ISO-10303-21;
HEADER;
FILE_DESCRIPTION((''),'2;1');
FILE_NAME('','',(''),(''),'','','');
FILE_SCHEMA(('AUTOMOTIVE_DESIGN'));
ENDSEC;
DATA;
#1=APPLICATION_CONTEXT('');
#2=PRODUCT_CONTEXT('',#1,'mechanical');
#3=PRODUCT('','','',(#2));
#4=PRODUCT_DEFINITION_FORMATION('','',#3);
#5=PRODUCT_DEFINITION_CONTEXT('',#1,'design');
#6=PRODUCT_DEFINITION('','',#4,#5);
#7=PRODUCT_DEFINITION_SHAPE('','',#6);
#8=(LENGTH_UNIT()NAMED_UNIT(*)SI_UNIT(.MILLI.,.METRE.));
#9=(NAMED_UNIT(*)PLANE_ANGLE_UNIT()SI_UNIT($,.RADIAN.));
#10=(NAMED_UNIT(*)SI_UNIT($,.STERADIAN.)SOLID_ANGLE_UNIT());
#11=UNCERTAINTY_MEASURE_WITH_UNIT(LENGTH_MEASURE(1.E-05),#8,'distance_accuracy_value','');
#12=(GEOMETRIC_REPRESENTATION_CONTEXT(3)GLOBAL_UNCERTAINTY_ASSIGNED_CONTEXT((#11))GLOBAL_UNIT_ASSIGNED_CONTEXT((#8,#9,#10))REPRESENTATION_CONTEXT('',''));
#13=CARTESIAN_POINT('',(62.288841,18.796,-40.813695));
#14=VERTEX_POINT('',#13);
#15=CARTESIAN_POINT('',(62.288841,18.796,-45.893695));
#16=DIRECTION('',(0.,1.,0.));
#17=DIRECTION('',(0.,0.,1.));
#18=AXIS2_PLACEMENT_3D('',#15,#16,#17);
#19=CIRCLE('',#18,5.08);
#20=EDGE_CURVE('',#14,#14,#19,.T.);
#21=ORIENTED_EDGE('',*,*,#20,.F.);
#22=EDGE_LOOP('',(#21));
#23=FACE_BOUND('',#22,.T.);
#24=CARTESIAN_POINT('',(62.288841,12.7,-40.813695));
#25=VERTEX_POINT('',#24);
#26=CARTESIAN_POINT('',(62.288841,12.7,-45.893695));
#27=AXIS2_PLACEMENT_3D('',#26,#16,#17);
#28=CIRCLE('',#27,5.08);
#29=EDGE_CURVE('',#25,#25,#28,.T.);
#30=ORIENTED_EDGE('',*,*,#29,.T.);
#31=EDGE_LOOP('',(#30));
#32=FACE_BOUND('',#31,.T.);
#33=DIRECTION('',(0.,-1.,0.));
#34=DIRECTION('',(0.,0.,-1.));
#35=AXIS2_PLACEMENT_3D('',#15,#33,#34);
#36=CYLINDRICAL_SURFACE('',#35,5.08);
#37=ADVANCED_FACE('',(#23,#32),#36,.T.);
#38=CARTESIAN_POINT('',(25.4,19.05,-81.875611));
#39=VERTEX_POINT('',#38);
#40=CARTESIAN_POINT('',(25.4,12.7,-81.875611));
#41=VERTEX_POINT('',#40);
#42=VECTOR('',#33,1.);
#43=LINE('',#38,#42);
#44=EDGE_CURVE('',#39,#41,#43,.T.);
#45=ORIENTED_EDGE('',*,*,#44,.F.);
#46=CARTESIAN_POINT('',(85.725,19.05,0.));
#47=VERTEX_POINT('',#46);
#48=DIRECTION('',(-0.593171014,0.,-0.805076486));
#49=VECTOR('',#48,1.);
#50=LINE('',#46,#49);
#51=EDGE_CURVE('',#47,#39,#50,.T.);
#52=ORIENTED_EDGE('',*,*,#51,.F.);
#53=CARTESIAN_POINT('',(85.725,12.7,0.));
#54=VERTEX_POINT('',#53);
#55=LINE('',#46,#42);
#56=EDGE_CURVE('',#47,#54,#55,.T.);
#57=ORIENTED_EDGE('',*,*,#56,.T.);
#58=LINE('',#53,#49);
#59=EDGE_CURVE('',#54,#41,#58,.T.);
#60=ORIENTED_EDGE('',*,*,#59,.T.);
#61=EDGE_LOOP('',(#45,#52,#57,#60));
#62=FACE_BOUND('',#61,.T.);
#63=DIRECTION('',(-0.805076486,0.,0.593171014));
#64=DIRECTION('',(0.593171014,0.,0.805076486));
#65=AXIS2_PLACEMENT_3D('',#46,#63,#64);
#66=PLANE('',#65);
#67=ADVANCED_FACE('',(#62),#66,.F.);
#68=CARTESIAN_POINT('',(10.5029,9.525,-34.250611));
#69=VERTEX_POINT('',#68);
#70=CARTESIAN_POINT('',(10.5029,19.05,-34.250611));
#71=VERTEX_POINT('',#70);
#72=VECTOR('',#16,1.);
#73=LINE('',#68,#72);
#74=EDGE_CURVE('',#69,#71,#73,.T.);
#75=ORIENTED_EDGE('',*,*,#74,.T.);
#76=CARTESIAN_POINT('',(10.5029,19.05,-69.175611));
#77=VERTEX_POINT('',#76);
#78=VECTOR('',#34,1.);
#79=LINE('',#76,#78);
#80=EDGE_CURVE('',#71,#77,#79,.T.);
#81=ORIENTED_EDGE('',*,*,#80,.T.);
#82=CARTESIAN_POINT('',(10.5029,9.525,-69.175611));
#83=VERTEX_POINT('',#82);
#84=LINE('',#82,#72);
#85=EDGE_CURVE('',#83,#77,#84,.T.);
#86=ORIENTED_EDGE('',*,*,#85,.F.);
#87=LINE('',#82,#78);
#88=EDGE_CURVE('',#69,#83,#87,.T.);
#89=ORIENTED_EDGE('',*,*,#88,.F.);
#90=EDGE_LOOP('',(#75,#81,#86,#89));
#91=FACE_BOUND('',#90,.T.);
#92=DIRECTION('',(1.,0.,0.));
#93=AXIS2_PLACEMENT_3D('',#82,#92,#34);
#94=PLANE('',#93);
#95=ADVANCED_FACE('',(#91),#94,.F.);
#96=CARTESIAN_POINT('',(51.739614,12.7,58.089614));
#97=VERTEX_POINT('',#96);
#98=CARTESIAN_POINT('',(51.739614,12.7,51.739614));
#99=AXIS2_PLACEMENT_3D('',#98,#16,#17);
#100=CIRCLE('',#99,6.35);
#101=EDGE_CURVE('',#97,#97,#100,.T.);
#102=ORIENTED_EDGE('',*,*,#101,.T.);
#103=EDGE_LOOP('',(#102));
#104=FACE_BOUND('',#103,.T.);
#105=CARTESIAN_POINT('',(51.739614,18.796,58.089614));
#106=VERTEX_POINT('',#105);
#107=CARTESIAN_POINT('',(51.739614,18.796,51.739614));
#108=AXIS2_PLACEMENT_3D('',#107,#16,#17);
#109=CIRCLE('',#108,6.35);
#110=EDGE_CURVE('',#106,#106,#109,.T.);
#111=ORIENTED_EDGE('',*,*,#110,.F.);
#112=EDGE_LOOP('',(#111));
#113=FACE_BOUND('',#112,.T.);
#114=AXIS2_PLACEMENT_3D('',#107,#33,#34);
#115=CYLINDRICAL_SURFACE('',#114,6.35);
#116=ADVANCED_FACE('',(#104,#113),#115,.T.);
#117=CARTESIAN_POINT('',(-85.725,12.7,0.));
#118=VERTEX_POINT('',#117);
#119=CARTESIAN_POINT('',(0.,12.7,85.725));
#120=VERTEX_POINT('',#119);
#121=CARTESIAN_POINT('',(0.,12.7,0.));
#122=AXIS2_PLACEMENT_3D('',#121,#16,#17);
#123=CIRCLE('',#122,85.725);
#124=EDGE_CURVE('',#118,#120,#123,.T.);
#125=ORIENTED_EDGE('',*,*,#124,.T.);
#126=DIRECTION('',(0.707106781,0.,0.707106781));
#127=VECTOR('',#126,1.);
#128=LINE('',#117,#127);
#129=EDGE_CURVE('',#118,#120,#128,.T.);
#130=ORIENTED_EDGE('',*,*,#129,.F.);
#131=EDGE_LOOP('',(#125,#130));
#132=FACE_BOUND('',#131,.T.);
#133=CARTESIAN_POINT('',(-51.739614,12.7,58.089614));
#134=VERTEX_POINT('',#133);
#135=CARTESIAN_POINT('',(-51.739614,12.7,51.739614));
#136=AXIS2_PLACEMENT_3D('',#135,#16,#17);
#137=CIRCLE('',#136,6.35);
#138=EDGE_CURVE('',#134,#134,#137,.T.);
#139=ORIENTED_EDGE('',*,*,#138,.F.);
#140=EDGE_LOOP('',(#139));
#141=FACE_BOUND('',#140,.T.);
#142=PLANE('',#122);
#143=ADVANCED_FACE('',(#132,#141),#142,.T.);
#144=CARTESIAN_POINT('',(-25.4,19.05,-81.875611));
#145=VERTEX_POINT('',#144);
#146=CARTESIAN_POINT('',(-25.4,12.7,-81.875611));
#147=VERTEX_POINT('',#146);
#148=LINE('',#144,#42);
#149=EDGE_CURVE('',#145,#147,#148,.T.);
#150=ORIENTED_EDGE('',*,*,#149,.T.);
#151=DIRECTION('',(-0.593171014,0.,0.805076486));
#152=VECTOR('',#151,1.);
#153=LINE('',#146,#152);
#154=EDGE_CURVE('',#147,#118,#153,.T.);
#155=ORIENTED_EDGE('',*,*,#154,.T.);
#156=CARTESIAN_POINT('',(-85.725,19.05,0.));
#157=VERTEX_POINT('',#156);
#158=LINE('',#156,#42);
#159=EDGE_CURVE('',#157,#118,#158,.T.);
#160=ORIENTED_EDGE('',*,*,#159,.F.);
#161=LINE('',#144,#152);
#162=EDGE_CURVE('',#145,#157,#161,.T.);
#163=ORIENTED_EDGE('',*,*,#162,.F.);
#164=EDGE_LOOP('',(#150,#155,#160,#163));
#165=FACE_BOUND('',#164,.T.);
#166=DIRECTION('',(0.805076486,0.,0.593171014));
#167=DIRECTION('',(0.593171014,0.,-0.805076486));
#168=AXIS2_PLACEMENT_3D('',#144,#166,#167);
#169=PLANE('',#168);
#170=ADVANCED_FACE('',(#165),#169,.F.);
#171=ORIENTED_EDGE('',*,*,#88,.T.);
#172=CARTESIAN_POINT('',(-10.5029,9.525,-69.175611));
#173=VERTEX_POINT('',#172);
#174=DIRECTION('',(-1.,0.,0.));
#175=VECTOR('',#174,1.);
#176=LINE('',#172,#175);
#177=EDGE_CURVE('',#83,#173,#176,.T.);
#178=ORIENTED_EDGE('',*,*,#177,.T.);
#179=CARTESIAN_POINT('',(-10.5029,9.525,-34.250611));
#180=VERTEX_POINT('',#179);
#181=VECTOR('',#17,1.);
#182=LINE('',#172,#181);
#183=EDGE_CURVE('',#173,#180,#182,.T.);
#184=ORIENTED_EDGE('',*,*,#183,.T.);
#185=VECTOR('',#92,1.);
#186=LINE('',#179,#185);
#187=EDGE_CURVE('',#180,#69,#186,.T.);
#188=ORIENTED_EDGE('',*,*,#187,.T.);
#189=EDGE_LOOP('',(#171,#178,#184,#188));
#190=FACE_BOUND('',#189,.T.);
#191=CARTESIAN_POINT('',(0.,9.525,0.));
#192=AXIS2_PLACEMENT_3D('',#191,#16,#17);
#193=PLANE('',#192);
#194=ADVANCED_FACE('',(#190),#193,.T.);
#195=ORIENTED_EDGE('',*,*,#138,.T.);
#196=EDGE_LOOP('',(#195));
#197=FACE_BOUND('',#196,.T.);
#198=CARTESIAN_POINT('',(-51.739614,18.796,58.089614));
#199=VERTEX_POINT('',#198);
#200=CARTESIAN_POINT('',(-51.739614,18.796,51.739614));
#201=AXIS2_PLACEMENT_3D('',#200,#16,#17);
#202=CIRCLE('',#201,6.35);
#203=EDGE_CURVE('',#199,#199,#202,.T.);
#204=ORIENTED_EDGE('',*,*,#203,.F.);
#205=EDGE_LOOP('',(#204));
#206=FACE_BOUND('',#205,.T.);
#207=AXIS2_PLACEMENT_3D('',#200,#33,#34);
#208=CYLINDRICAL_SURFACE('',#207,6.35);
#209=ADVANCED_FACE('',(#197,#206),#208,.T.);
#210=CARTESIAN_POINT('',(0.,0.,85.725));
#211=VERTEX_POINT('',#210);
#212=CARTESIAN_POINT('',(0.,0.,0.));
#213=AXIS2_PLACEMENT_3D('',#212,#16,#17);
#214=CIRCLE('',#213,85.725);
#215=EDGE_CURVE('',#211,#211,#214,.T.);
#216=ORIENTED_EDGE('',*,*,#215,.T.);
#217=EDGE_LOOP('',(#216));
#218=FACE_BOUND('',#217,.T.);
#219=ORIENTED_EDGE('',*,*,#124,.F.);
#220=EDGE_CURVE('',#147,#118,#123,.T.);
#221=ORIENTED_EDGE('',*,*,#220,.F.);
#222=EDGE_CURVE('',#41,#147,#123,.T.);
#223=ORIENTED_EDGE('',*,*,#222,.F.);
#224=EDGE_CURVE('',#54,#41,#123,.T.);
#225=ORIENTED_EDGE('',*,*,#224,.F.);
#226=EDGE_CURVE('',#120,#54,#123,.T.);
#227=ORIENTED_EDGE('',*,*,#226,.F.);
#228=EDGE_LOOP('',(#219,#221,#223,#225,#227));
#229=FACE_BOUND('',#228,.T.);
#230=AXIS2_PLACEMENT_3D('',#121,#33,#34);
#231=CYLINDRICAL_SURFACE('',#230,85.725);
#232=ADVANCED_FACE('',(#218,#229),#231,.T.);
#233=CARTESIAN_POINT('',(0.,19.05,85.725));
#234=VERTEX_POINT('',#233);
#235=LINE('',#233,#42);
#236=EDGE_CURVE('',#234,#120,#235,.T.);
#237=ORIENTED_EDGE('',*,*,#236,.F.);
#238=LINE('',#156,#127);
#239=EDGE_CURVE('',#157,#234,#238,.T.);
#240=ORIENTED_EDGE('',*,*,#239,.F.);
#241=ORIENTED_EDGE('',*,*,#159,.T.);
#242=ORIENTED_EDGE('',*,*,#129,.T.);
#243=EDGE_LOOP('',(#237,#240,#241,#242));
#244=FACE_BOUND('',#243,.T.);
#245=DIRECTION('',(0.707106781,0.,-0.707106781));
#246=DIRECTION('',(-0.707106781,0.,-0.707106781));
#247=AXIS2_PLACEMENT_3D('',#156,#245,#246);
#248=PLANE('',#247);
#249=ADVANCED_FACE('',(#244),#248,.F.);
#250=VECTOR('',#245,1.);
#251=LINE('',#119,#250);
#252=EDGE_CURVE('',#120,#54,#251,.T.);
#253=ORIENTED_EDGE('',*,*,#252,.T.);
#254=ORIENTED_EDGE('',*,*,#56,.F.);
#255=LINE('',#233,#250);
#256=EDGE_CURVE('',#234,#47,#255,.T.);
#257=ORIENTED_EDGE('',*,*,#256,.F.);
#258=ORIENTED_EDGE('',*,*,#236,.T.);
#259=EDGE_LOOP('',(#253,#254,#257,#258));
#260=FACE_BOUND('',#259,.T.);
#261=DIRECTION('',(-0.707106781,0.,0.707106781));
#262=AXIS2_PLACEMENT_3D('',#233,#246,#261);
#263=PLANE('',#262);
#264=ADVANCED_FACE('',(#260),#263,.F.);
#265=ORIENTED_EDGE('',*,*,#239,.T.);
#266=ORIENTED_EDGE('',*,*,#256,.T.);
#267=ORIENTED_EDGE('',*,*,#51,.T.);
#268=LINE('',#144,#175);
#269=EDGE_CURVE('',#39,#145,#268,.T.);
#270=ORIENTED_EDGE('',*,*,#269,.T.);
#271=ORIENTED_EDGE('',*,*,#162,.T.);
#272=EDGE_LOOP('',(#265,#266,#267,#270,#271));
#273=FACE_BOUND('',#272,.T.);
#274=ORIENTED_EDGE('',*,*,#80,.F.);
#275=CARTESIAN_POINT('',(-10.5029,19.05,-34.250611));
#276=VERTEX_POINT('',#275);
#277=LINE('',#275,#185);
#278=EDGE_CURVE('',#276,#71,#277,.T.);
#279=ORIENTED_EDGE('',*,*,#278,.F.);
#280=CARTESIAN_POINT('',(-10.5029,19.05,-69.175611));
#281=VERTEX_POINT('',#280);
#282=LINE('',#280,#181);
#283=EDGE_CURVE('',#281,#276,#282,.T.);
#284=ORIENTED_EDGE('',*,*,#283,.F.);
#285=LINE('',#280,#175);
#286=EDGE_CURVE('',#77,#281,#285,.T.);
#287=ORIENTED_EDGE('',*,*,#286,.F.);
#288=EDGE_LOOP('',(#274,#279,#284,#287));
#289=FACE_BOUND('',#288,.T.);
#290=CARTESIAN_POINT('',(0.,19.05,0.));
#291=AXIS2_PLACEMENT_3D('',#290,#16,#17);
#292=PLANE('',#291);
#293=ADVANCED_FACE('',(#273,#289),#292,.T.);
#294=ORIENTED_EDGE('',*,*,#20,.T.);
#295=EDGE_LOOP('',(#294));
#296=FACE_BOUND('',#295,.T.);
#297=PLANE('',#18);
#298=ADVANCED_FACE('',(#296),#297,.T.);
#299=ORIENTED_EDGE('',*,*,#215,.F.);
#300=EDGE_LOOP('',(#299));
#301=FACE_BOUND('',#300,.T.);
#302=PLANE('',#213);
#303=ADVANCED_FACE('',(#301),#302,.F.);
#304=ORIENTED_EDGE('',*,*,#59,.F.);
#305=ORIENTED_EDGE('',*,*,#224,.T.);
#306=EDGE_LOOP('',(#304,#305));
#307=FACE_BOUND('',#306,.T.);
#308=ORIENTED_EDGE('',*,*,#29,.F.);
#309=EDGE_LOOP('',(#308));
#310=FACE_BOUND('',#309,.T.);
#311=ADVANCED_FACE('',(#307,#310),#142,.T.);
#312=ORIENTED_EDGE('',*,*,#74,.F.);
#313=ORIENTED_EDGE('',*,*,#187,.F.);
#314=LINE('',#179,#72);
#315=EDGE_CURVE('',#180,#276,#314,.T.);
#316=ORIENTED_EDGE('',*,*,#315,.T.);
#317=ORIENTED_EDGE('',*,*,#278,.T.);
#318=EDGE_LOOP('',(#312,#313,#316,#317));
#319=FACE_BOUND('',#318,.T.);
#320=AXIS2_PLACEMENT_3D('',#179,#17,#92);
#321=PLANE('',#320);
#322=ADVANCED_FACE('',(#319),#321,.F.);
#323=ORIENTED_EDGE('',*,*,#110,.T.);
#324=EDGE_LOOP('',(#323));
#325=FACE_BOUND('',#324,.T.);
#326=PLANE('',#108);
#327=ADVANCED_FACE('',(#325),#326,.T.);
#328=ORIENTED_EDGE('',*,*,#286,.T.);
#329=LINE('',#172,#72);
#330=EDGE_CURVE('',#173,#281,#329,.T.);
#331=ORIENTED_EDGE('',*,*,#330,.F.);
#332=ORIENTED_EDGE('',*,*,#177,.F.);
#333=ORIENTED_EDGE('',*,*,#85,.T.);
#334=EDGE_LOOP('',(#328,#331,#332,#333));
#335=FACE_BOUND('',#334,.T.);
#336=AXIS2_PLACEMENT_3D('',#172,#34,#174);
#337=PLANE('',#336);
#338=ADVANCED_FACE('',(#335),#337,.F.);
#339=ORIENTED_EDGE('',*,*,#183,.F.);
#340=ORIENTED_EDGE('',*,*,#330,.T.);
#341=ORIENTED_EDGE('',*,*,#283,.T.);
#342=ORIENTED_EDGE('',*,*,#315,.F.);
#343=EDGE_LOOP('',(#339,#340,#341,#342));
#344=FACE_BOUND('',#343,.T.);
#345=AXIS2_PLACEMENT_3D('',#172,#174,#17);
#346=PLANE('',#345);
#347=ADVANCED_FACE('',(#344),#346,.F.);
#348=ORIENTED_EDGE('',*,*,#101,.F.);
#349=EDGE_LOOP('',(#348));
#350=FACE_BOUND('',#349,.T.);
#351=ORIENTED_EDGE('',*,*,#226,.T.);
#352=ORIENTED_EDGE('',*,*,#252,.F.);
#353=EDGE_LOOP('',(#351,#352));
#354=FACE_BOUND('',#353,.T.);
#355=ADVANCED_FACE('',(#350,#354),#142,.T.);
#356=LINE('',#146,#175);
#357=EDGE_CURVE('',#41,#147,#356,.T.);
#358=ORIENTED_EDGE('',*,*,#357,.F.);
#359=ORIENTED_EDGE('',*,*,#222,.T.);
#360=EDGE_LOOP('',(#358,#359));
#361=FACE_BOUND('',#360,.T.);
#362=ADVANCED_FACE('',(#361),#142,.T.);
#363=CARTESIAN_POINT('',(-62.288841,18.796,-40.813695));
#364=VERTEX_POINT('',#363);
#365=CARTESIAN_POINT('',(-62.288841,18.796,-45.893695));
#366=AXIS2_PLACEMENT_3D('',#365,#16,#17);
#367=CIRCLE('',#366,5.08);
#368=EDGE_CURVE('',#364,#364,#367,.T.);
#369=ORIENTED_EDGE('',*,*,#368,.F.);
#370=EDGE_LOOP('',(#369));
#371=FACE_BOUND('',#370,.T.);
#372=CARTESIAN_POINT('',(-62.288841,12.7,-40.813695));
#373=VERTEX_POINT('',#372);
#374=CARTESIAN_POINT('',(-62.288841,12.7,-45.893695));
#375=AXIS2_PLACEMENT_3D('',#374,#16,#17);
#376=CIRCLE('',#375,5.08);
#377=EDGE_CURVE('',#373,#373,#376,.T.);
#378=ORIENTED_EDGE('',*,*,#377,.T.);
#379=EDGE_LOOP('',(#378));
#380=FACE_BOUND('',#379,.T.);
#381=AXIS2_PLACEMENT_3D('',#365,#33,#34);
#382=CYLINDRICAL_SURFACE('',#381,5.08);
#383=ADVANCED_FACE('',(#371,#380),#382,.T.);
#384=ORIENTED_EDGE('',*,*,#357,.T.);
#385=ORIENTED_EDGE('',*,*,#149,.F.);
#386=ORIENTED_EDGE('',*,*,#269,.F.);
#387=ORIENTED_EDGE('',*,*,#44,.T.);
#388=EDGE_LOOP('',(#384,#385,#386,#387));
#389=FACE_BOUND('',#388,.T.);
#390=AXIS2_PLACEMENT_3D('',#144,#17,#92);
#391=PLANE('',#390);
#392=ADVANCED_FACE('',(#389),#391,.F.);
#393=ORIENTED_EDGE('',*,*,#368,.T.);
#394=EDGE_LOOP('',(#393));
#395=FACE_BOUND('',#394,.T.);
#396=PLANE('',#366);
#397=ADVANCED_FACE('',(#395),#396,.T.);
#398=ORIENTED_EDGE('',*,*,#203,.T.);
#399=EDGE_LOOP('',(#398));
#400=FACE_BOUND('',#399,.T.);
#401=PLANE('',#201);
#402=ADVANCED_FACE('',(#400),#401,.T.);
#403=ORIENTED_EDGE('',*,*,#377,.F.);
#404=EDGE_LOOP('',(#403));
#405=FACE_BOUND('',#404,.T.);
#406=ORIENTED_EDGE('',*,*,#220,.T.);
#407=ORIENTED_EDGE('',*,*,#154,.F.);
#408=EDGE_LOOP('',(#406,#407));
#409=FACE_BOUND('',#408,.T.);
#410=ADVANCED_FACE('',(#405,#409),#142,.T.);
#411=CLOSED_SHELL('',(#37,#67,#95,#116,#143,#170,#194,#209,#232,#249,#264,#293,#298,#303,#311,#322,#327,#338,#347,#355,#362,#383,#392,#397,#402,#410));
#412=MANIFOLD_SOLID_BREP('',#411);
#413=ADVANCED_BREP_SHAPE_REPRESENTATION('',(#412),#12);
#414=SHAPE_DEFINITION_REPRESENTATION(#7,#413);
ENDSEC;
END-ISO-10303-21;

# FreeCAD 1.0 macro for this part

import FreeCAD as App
import Part
import Sketcher

V = App.Vector
Q = App.Units.Quantity


def add_polygon(sketch, points):
    """Adds a closed chain of lines whose ends are joined by coincident constraints."""
    first, n = sketch.GeometryCount, len(points)
    for a, b in zip(points, points[1:] + points[:1]):
        sketch.addGeometry(Part.LineSegment(App.Vector(*a, 0), App.Vector(*b, 0)), False)
    for i in range(n):
        sketch.addConstraint(Sketcher.Constraint("Coincident", first + i, 2, first + (i + 1) % n, 1))

doc = App.newDocument("Part")
body = doc.addObject("PartDesign::Body", "Body")

sketch1 = body.newObject("Sketcher::SketchObject", "Sketch")
sketch1.AttachmentSupport = (doc.getObject("XZ_Plane"), [""])
sketch1.MapMode = "FlatFace"
sketch1.addGeometry(Part.Circle(V(0, 0, 0), V(0, 0, 1), 86), False)
sketch1.addConstraint(Sketcher.Constraint("Coincident", 0, 3, -1, 1))
sketch1.addConstraint(Sketcher.Constraint("Diameter", 0, Q("6.75 in")))
pad1 = body.newObject("PartDesign::Pad", "Pad")
pad1.Profile = sketch1
pad1.Length = Q("0.5 in")
pad1.Reversed = True

sketch2 = body.newObject("Sketcher::SketchObject", "Sketch001")
sketch2.AttachmentSupport = (doc.getObject("XZ_Plane"), [""])
sketch2.MapMode = "FlatFace"
sketch2.AttachmentOffset = App.Placement(V(0, 0, -0.5 * 25.4), App.Rotation())
add_polygon(sketch2, [(25, -82), (-25, -82), (-86, 0), (0, 86), (86, 0)])
sketch2.addConstraint(Sketcher.Constraint("Horizontal", 0))
sketch2.addConstraint(Sketcher.Constraint("Symmetric", 1, 2, 3, 2, -1, 1))
sketch2.addConstraint(Sketcher.Constraint("PointOnObject", 1, 2, -1))
sketch2.addConstraint(Sketcher.Constraint("PointOnObject", 2, 2, -2))
sketch2.addConstraint(Sketcher.Constraint("Perpendicular", 2, 3))
sketch2.addConstraint(Sketcher.Constraint("Equal", 1, 4))
sketch2.addConstraint(Sketcher.Constraint("DistanceX", 0, 2, 0, 1, Q("2 in")))
sketch2.addConstraint(Sketcher.Constraint("DistanceX", 1, 2, 3, 2, Q("6.75 in")))
sketch2.addConstraint(Sketcher.Constraint("Distance", 1, Q("101.69917 mm")))
pad2 = body.newObject("PartDesign::Pad", "Pad001")
pad2.Profile = sketch2
pad2.Length = Q("0.25 in")
pad2.Reversed = True

sketch3 = body.newObject("Sketcher::SketchObject", "Sketch002")
sketch3.AttachmentSupport = (doc.getObject("XZ_Plane"), [""])
sketch3.MapMode = "FlatFace"
sketch3.AttachmentOffset = App.Placement(V(0, 0, -0.5 * 25.4), App.Rotation())
sketch3.addGeometry(Part.Circle(V(-52, 52, 0), V(0, 0, 1), 6), False)
sketch3.addGeometry(Part.Circle(V(52, 52, 0), V(0, 0, 1), 6), False)
sketch3.addGeometry(Part.Circle(V(62, -46, 0), V(0, 0, 1), 5), False)
sketch3.addGeometry(Part.Circle(V(-62, -46, 0), V(0, 0, 1), 5), False)
sketch3.addConstraint(Sketcher.Constraint("Equal", 0, 1))
sketch3.addConstraint(Sketcher.Constraint("Equal", 2, 3))
sketch3.addConstraint(Sketcher.Constraint("Symmetric", 0, 3, 1, 3, -2))
sketch3.addConstraint(Sketcher.Constraint("Symmetric", 2, 3, 3, 3, -2))
sketch3.addConstraint(Sketcher.Constraint("Diameter", 0, Q("0.5 in")))
sketch3.addConstraint(Sketcher.Constraint("Diameter", 2, Q("0.4 in")))
sketch3.addConstraint(Sketcher.Constraint("DistanceX", -1, 1, 2, 3, Q("62.288841 mm")))
sketch3.addConstraint(Sketcher.Constraint("DistanceX", 0, 3, 1, 3, Q("103.479229 mm")))
sketch3.addConstraint(Sketcher.Constraint("DistanceY", 2, 3, 1, 3, Q("97.63331 mm")))
sketch3.addConstraint(Sketcher.Constraint("DistanceY", -1, 1, 0, 3, Q("51.739614 mm")))
pad3 = body.newObject("PartDesign::Pad", "Pad002")
pad3.Profile = sketch3
pad3.Length = Q("0.24 in")
pad3.Reversed = True

sketch4 = body.newObject("Sketcher::SketchObject", "Sketch003")
sketch4.AttachmentSupport = (doc.getObject("XZ_Plane"), [""])
sketch4.MapMode = "FlatFace"
sketch4.AttachmentOffset = App.Placement(V(0, 0, -0.75 * 25.4), App.Rotation())
add_polygon(sketch4, [(-11, -69), (-11, -34), (11, -34), (11, -69)])
sketch4.addConstraint(Sketcher.Constraint("Vertical", 0))
sketch4.addConstraint(Sketcher.Constraint("Horizontal", 1))
sketch4.addConstraint(Sketcher.Constraint("Vertical", 2))
sketch4.addConstraint(Sketcher.Constraint("Horizontal", 3))
sketch4.addConstraint(Sketcher.Constraint("DistanceX", 1, 1, 1, 2, Q("0.827 in")))
sketch4.addConstraint(Sketcher.Constraint("DistanceY", 0, 1, 0, 2, Q("1.375 in")))
sketch4.addConstraint(Sketcher.Constraint("DistanceX", 0, 2, -1, 1, Q("0.4135 in")))
sketch4.addConstraint(Sketcher.Constraint("DistanceY", 0, 2, -1, 1, Q("34.250611 mm")))
pocket1 = body.newObject("PartDesign::Pocket", "Pocket")
pocket1.Profile = sketch4
pocket1.Length = Q("0.375 in")
pocket1.Reversed = True

doc.recompute()
